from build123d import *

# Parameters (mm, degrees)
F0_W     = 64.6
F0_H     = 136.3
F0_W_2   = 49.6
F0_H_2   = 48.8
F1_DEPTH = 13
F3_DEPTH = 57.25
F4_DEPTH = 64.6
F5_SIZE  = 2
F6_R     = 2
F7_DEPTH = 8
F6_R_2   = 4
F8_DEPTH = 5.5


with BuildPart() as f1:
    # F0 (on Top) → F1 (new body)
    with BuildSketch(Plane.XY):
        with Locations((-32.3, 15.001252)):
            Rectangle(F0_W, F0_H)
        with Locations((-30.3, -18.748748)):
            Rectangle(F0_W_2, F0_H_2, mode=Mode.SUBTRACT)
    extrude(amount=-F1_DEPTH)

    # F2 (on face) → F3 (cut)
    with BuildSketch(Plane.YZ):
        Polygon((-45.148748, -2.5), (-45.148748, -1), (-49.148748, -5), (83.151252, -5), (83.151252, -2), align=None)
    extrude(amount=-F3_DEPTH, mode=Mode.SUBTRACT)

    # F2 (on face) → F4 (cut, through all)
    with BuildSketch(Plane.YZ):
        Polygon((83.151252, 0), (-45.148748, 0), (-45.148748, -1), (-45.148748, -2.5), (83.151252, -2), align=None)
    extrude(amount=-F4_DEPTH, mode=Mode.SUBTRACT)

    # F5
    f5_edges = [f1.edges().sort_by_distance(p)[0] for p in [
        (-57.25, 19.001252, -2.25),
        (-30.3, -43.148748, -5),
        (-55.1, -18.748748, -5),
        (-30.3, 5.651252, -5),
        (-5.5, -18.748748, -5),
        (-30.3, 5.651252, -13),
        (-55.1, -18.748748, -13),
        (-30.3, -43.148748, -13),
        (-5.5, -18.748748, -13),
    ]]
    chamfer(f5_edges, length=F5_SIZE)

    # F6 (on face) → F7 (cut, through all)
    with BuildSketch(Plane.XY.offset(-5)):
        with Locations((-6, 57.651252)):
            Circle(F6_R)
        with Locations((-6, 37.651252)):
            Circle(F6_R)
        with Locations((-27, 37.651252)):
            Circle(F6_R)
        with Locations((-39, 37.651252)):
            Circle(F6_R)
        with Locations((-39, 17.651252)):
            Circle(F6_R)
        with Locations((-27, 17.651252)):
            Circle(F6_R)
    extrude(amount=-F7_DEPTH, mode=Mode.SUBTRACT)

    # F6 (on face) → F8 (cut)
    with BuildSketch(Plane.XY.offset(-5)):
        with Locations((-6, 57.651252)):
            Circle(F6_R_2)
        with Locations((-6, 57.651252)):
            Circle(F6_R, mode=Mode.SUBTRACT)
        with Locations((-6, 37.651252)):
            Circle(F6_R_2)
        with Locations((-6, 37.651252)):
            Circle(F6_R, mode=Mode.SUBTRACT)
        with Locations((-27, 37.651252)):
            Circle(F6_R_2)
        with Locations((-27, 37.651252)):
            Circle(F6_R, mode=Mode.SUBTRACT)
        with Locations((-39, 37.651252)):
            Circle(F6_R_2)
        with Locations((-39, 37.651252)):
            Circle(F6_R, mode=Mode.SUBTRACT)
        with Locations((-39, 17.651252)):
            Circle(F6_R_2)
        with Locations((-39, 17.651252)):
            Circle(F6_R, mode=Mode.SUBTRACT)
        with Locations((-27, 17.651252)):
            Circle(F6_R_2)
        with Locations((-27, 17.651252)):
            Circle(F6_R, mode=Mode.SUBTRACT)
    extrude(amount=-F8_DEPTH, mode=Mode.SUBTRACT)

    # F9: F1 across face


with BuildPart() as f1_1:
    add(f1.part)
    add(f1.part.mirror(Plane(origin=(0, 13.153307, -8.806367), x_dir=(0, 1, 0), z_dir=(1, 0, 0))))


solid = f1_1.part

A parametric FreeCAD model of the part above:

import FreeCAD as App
import Part
import Sketcher

V = App.Vector
Q = App.Units.Quantity


def edges_at(feature, points):
    """Names of the edges that pass closest to the given points."""
    edges = feature.Shape.Edges
    near = lambda p: min(range(len(edges)), key=lambda i: edges[i].distToShape(Part.Vertex(*p))[0])
    return sorted({f"Edge{near(p) + 1}" for p in points})


def add_polygon(sketch, points):
    """Adds a closed chain of lines whose ends are joined by coincident constraints."""
    first, n = sketch.GeometryCount, len(points)
    for a, b in zip(points, points[1:] + points[:1]):
        sketch.addGeometry(Part.LineSegment(App.Vector(*a, 0), App.Vector(*b, 0)), False)
    for i in range(n):
        sketch.addConstraint(Sketcher.Constraint("Coincident", first + i, 2, first + (i + 1) % n, 1))

doc = App.newDocument("Part")
body = doc.addObject("PartDesign::Body", "Body")

# Sketch on XY plane
sketch1 = body.newObject("Sketcher::SketchObject", "Sketch")
sketch1.AttachmentSupport = (doc.getObject("XY_Plane"), [""])
sketch1.MapMode = "FlatFace"
add_polygon(sketch1, [(-65, 83), (-65, -53), (0, -53), (0, 83)])  # lines 0-3
add_polygon(sketch1, [(-6, -43), (-55, -43), (-55, 6), (-6, 6)])  # lines 4-7
sketch1.addConstraint([
    Sketcher.Constraint("Vertical", 0),
    Sketcher.Constraint("Horizontal", 1),
    Sketcher.Constraint("Vertical", 2),
    Sketcher.Constraint("Horizontal", 3),
    Sketcher.Constraint("Horizontal", 4),
    Sketcher.Constraint("Vertical", 5),
    Sketcher.Constraint("Horizontal", 6),
    Sketcher.Constraint("Vertical", 7),
    Sketcher.Constraint("PointOnObject", 1, 2, -2),
    Sketcher.Constraint("DistanceX", 1, 1, 1, 2, Q("64.6 mm")),
    Sketcher.Constraint("DistanceX", 4, 2, 4, 1, Q("49.6 mm")),
    Sketcher.Constraint("DistanceY", 0, 2, 0, 1, Q("136.3 mm")),
    Sketcher.Constraint("DistanceY", 5, 1, 5, 2, Q("48.8 mm")),
    Sketcher.Constraint("DistanceY", 0, 2, 4, 2, Q("10 mm")),
    Sketcher.Constraint("DistanceX", 4, 2, -1, 1, Q("55.1 mm")),
    Sketcher.Constraint("DistanceY", -1, 1, 2, 2, Q("83.151252 mm")),
])
pad1 = body.newObject("PartDesign::Pad", "Pad")
pad1.Profile = sketch1
pad1.Length = 13
pad1.Reversed = True

# Sketch on YZ plane
sketch2 = body.newObject("Sketcher::SketchObject", "Sketch001")
sketch2.AttachmentSupport = (doc.getObject("YZ_Plane"), [""])
sketch2.MapMode = "FlatFace"
add_polygon(sketch2, [(-45.1, -2.5), (-45.1, -1), (-49.1, -5), (83.2, -5), (83.2, -2)])  # lines 0-4
sketch2.addConstraint([
    Sketcher.Constraint("Vertical", 0),
    Sketcher.Constraint("Horizontal", 2),
    Sketcher.Constraint("Vertical", 3),
    Sketcher.Constraint("DistanceY", 3, 1, 3, 2, Q("3 mm")),
    Sketcher.Constraint("Angle", 1, Q("-135 deg")),
    Sketcher.Constraint("DistanceX", 2, 1, 2, 2, Q("132.3 mm")),
    Sketcher.Constraint("DistanceY", 0, 1, 0, 2, Q("1.5 mm")),
    Sketcher.Constraint("DistanceY", 0, 2, -1, 1, Q("1 mm")),
    Sketcher.Constraint("DistanceY", 1, 2, -1, 1, Q("5 mm")),
    Sketcher.Constraint("DistanceX", -1, 1, 2, 2, Q("83.151252 mm")),
])
pocket1 = body.newObject("PartDesign::Pocket", "Pocket")
pocket1.Profile = sketch2
pocket1.Length = 57.25

# Sketch on YZ plane
sketch3 = body.newObject("Sketcher::SketchObject", "Sketch002")
sketch3.AttachmentSupport = (doc.getObject("YZ_Plane"), [""])
sketch3.MapMode = "FlatFace"
add_polygon(sketch3, [(83.2, 0), (-45.1, 0), (-45.1, -2.5), (83.2, -2)])  # lines 0-3
sketch3.addConstraint([
    Sketcher.Constraint("Horizontal", 0),
    Sketcher.Constraint("Vertical", 1),
    Sketcher.Constraint("Vertical", 3),
    Sketcher.Constraint("PointOnObject", 0, 2, -1),
    Sketcher.Constraint("DistanceY", 3, 1, 3, 2, Q("2 mm")),
    Sketcher.Constraint("DistanceX", 0, 2, 0, 1, Q("128.3 mm")),
    Sketcher.Constraint("DistanceY", 1, 2, 1, 1, Q("2.5 mm")),
    Sketcher.Constraint("DistanceX", -1, 1, 2, 2, Q("83.151252 mm")),
])
pocket2 = body.newObject("PartDesign::Pocket", "Pocket001")
pocket2.Profile = sketch3
pocket2.Type = "ThroughAll"
doc.recompute()

chamfer = body.newObject("PartDesign::Chamfer", "Chamfer")
chamfer.Base = (pocket2, edges_at(pocket2, [
    (-57.25, 19.001, -2.25),
    (-30.3, -43.149, -5),
    (-55.1, -18.749, -5),
    (-30.3, 5.651, -5),
    (-5.5, -18.749, -5),
    (-30.3, 5.651, -13),
    (-55.1, -18.749, -13),
    (-30.3, -43.149, -13),
    (-5.5, -18.749, -13),
]))
chamfer.Size = 2

# Sketch on XY plane
sketch4 = body.newObject("Sketcher::SketchObject", "Sketch003")
sketch4.AttachmentSupport = (doc.getObject("XY_Plane"), [""])
sketch4.MapMode = "FlatFace"
sketch4.AttachmentOffset = App.Placement(V(0, 0, -5), App.Rotation())
sketch4.addGeometry([
    Part.Circle(V(-6, 57.7, 0), V(0, 0, 1), 2),  # 0
    Part.Circle(V(-6, 37.7, 0), V(0, 0, 1), 2),  # 1
    Part.Circle(V(-27, 37.7, 0), V(0, 0, 1), 2),  # 2
    Part.Circle(V(-39, 37.7, 0), V(0, 0, 1), 2),  # 3
    Part.Circle(V(-39, 17.7, 0), V(0, 0, 1), 2),  # 4
    Part.Circle(V(-27, 17.7, 0), V(0, 0, 1), 2),  # 5
], False)
sketch4.addConstraint([
    Sketcher.Constraint("Equal", 0, 1),
    Sketcher.Constraint("Equal", 1, 2),
    Sketcher.Constraint("Equal", 2, 3),
    Sketcher.Constraint("Equal", 3, 4),
    Sketcher.Constraint("Equal", 4, 5),
    Sketcher.Constraint("Horizontal", 1, 3, 2, 3),
    Sketcher.Constraint("Horizontal", 2, 3, 3, 3),
    Sketcher.Constraint("Horizontal", 4, 3, 5, 3),
    Sketcher.Constraint("Vertical", 0, 3, 1, 3),
    Sketcher.Constraint("Vertical", 3, 3, 4, 3),
    Sketcher.Constraint("Vertical", 2, 3, 5, 3),
    Sketcher.Constraint("Diameter", 0, Q("4 mm")),
    Sketcher.Constraint("DistanceX", 0, 3, -1, 1, Q("6 mm")),
    Sketcher.Constraint("DistanceX", 2, 3, -1, 1, Q("27 mm")),
    Sketcher.Constraint("DistanceX", 3, 3, -1, 1, Q("39 mm")),
    Sketcher.Constraint("DistanceY", 1, 3, 0, 3, Q("20 mm")),
    Sketcher.Constraint("DistanceY", 4, 3, 3, 3, Q("20 mm")),
    Sketcher.Constraint("DistanceY", -1, 1, 4, 3, Q("17.651252 mm")),
])
pocket3 = body.newObject("PartDesign::Pocket", "Pocket002")
pocket3.Profile = sketch4
pocket3.Type = "ThroughAll"

# Sketch on XY plane
sketch5 = body.newObject("Sketcher::SketchObject", "Sketch004")
sketch5.AttachmentSupport = (doc.getObject("XY_Plane"), [""])
sketch5.MapMode = "FlatFace"
sketch5.AttachmentOffset = App.Placement(V(0, 0, -5), App.Rotation())
sketch5.addGeometry([
    Part.Circle(V(-6, 57.7, 0), V(0, 0, 1), 4),  # 0
    Part.Circle(V(-6, 57.7, 0), V(0, 0, 1), 2),  # 1
    Part.Circle(V(-6, 37.7, 0), V(0, 0, 1), 4),  # 2
    Part.Circle(V(-6, 37.7, 0), V(0, 0, 1), 2),  # 3
    Part.Circle(V(-27, 37.7, 0), V(0, 0, 1), 4),  # 4
    Part.Circle(V(-27, 37.7, 0), V(0, 0, 1), 2),  # 5
    Part.Circle(V(-39, 37.7, 0), V(0, 0, 1), 4),  # 6
    Part.Circle(V(-39, 37.7, 0), V(0, 0, 1), 2),  # 7
    Part.Circle(V(-39, 17.7, 0), V(0, 0, 1), 4),  # 8
    Part.Circle(V(-39, 17.7, 0), V(0, 0, 1), 2),  # 9
    Part.Circle(V(-27, 17.7, 0), V(0, 0, 1), 4),  # 10
    Part.Circle(V(-27, 17.7, 0), V(0, 0, 1), 2),  # 11
], False)
sketch5.addConstraint([
    Sketcher.Constraint("Coincident", 1, 3, 0, 3),
    Sketcher.Constraint("Coincident", 3, 3, 2, 3),
    Sketcher.Constraint("Coincident", 5, 3, 4, 3),
    Sketcher.Constraint("Coincident", 7, 3, 6, 3),
    Sketcher.Constraint("Coincident", 9, 3, 8, 3),
    Sketcher.Constraint("Coincident", 11, 3, 10, 3),
    Sketcher.Constraint("Equal", 0, 2),
    Sketcher.Constraint("Equal", 1, 3),
    Sketcher.Constraint("Equal", 2, 4),
    Sketcher.Constraint("Equal", 3, 5),
    Sketcher.Constraint("Equal", 4, 6),
    Sketcher.Constraint("Equal", 5, 7),
    Sketcher.Constraint("Equal", 6, 8),
    Sketcher.Constraint("Equal", 7, 9),
    Sketcher.Constraint("Equal", 8, 10),
    Sketcher.Constraint("Equal", 9, 11),
    Sketcher.Constraint("Horizontal", 3, 3, 4, 3),
    Sketcher.Constraint("Horizontal", 5, 3, 6, 3),
    Sketcher.Constraint("Horizontal", 9, 3, 10, 3),
    Sketcher.Constraint("Vertical", 1, 3, 2, 3),
    Sketcher.Constraint("Vertical", 7, 3, 8, 3),
    Sketcher.Constraint("Vertical", 5, 3, 10, 3),
    Sketcher.Constraint("Diameter", 0, Q("8 mm")),
    Sketcher.Constraint("Diameter", 1, Q("4 mm")),
    Sketcher.Constraint("DistanceX", 0, 3, -1, 1, Q("6 mm")),
    Sketcher.Constraint("DistanceX", 4, 3, -1, 1, Q("27 mm")),
    Sketcher.Constraint("DistanceX", 6, 3, -1, 1, Q("39 mm")),
    Sketcher.Constraint("DistanceY", 2, 3, 0, 3, Q("20 mm")),
    Sketcher.Constraint("DistanceY", 8, 3, 6, 3, Q("20 mm")),
    Sketcher.Constraint("DistanceY", -1, 1, 8, 3, Q("17.651252 mm")),
])
pocket4 = body.newObject("PartDesign::Pocket", "Pocket003")
pocket4.Profile = sketch5
pocket4.Length = 5.5
body2 = doc.addObject("PartDesign::Body", "Body001")
doc.recompute()

body2.BaseFeature = body
doc.recompute()

mirroring = doc.addObject("Part::Mirroring", "Mirroring")
mirroring.Source = body
mirroring.Base = V(0, 13.153307, -8.806367)
mirroring.Normal = V(1, 0, 0)
body3 = doc.addObject("PartDesign::Body", "Body002")
body3.BaseFeature = mirroring
boolean = body2.newObject("PartDesign::Boolean", "Boolean")
boolean.Type = "Fuse"
boolean.addObjects([body3])
doc.recompute()
mirroring.Visibility = False

doc.recompute()
